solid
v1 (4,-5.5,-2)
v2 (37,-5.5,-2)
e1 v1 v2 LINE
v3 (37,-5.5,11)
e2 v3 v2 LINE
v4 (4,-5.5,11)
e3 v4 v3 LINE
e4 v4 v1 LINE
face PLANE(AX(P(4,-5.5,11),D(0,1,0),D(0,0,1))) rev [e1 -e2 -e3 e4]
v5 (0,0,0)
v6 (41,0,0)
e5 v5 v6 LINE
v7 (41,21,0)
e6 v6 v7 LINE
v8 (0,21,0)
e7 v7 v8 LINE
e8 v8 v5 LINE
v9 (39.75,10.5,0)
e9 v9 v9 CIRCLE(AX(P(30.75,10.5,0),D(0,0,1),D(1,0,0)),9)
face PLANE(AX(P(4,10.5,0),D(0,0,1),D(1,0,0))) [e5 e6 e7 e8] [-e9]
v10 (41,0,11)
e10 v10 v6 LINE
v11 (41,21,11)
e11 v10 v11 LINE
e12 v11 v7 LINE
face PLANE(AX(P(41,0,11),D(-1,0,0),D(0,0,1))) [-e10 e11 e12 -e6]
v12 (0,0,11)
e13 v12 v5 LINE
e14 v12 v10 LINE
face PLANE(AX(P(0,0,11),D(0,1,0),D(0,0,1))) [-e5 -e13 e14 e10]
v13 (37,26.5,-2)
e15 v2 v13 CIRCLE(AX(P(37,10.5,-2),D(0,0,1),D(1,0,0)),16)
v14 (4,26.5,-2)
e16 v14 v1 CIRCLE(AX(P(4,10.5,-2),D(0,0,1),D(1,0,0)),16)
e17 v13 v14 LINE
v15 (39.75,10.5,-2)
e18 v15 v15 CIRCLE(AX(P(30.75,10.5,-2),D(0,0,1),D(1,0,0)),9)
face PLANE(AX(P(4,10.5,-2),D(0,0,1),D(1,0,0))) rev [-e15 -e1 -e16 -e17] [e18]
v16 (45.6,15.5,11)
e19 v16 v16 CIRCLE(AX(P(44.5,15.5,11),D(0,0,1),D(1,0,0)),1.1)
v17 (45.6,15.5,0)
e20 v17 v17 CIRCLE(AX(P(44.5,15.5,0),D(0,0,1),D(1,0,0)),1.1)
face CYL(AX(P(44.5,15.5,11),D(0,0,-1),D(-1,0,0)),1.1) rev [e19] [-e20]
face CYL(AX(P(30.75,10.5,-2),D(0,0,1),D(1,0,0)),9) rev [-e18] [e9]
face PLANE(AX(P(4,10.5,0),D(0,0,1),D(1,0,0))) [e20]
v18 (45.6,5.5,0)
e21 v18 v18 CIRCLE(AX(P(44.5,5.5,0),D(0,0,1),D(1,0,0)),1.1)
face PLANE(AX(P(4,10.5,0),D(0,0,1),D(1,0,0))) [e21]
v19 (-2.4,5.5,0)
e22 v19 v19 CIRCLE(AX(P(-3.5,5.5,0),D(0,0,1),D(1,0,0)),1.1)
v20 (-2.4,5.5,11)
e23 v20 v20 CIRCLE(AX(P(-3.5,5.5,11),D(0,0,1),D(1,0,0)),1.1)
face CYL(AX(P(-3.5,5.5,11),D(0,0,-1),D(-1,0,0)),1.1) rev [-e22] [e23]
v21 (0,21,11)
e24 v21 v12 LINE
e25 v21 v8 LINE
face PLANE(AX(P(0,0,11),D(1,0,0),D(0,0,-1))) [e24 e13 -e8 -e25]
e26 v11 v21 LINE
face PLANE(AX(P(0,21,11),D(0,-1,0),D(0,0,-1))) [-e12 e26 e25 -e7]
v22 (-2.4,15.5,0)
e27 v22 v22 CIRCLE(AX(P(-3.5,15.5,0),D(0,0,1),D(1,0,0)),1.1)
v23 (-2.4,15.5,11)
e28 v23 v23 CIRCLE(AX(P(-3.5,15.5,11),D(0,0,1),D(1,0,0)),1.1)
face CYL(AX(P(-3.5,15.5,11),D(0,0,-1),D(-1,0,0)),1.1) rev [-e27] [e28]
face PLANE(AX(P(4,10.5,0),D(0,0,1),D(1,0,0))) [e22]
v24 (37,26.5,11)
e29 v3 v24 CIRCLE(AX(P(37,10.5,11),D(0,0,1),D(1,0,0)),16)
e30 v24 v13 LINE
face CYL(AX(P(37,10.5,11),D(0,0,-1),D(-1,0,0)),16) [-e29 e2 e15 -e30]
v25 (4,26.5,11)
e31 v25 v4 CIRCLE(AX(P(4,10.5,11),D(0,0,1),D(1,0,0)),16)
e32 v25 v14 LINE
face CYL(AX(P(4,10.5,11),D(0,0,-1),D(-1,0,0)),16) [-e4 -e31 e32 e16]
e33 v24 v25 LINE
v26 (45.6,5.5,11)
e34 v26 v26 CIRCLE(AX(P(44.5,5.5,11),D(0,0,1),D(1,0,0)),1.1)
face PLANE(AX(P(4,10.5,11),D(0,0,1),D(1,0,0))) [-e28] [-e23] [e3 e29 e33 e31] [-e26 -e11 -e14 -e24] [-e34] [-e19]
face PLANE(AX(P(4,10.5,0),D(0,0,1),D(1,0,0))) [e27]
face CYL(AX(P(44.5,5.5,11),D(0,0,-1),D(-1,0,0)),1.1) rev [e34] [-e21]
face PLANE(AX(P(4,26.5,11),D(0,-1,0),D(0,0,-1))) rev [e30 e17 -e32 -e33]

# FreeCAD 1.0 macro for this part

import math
import FreeCAD as App
import Part
import Sketcher
Q = App.Units.Quantity


def add_polygon(sketch, points):
    """Adds a closed chain of lines whose ends are joined by coincident constraints."""
    first, n = sketch.GeometryCount, len(points)
    for a, b in zip(points, points[1:] + points[:1]):
        sketch.addGeometry(Part.LineSegment(App.Vector(*a, 0), App.Vector(*b, 0)), False)
    for i in range(n):
        sketch.addConstraint(Sketcher.Constraint("Coincident", first + i, 2, first + (i + 1) % n, 1))

doc = App.newDocument("Part")
body = doc.addObject("PartDesign::Body", "Body")

# Sketch on XY plane
sketch1 = body.newObject("Sketcher::SketchObject", "Sketch")
sketch1.AttachmentSupport = (doc.getObject("XY_Plane"), [""])
sketch1.MapMode = "FlatFace"
sketch1.addGeometry(Part.LineSegment(App.Vector(4, -5.5, 0), App.Vector(37, -5.5, 0)), False)  # 0
sketch1.addGeometry(Part.ArcOfCircle(Part.Circle(App.Vector(37, 10.5, 0), App.Vector(0, 0, 1), 16), math.radians(-90), math.radians(90)), False)  # 1
sketch1.addGeometry(Part.LineSegment(App.Vector(37, 26.5, 0), App.Vector(4, 26.5, 0)), False)  # 2
sketch1.addGeometry(Part.ArcOfCircle(Part.Circle(App.Vector(4, 10.5, 0), App.Vector(0, 0, 1), 16), math.radians(90), math.radians(270)), False)  # 3
sketch1.addGeometry(Part.Circle(App.Vector(-3.5, 5.5, 0), App.Vector(0, 0, 1), 1.1), False)  # 4
sketch1.addGeometry(Part.Circle(App.Vector(44.5, 5.5, 0), App.Vector(0, 0, 1), 1.1), False)  # 5
sketch1.addGeometry(Part.Circle(App.Vector(-3.5, 15.5, 0), App.Vector(0, 0, 1), 1.1), False)  # 6
add_polygon(sketch1, [(41, 0), (0, 0), (0, 21), (41, 21)])  # lines 7-10
sketch1.addGeometry(Part.Circle(App.Vector(44.5, 15.5, 0), App.Vector(0, 0, 1), 1.1), False)  # 11
sketch1.addConstraint([
    Sketcher.Constraint("Tangent", 0, 2, 1, 1),
    Sketcher.Constraint("Tangent", 1, 2, 2, 1),
    Sketcher.Constraint("Tangent", 2, 2, 3, 1),
    Sketcher.Constraint("Tangent", 3, 2, 0, 1),
    Sketcher.Constraint("Horizontal", 0),
    Sketcher.Constraint("Horizontal", 2),
    Sketcher.Constraint("Horizontal", 7),
    Sketcher.Constraint("Vertical", 8),
    Sketcher.Constraint("Horizontal", 9),
    Sketcher.Constraint("Vertical", 10),
    Sketcher.Constraint("Coincident", 7, 2, -1, 1),
    Sketcher.Constraint("Equal", 4, 5),
    Sketcher.Constraint("Equal", 5, 6),
    Sketcher.Constraint("Equal", 6, 11),
    Sketcher.Constraint("Horizontal", 4, 3, 5, 3),
    Sketcher.Constraint("Horizontal", 6, 3, 11, 3),
    Sketcher.Constraint("Vertical", 4, 3, 6, 3),
    Sketcher.Constraint("Vertical", 5, 3, 11, 3),
    Sketcher.Constraint("Radius", 1, Q("16 mm")),
    Sketcher.Constraint("Diameter", 4, Q("2.2 mm")),
    Sketcher.Constraint("DistanceX", 0, 1, 0, 2, Q("33 mm")),
    Sketcher.Constraint("DistanceX", 7, 2, 7, 1, Q("41 mm")),
    Sketcher.Constraint("DistanceY", 8, 1, 8, 2, Q("21 mm")),
    Sketcher.Constraint("DistanceX", -1, 1, 1, 3, Q("37 mm")),
    Sketcher.Constraint("DistanceY", 4, 3, 3, 3, Q("5 mm")),
    Sketcher.Constraint("DistanceX", 4, 3, 5, 3, Q("48 mm")),
    Sketcher.Constraint("DistanceY", 3, 3, 6, 3, Q("5 mm")),
    Sketcher.Constraint("DistanceY", -1, 1, 1, 3, Q("10.5 mm")),
    Sketcher.Constraint("DistanceX", 4, 3, -1, 1, Q("3.5 mm")),
])
pad1 = body.newObject("PartDesign::Pad", "Pad")
pad1.Profile = sketch1
pad1.Length = 11

# Sketch on XY plane
sketch2 = body.newObject("Sketcher::SketchObject", "Sketch001")
sketch2.AttachmentSupport = (doc.getObject("XY_Plane"), [""])
sketch2.MapMode = "FlatFace"
sketch2.addGeometry([
    Part.LineSegment(App.Vector(37, 27, 0), App.Vector(4, 27, 0)),  # 0
    Part.ArcOfCircle(Part.Circle(App.Vector(4, 10, 0), App.Vector(0, 0, 1), 16), math.radians(90), math.radians(270)),  # 1
    Part.LineSegment(App.Vector(4, -6, 0), App.Vector(37, -6, 0)),  # 2
    Part.ArcOfCircle(Part.Circle(App.Vector(37, 10, 0), App.Vector(0, 0, 1), 16), math.radians(-90), math.radians(90)),  # 3
    Part.Circle(App.Vector(31, 10, 0), App.Vector(0, 0, 1), 9),  # 4
], False)
sketch2.addConstraint([
    Sketcher.Constraint("Tangent", 0, 2, 1, 1),
    Sketcher.Constraint("Tangent", 1, 2, 2, 1),
    Sketcher.Constraint("Tangent", 2, 2, 3, 1),
    Sketcher.Constraint("Tangent", 3, 2, 0, 1),
    Sketcher.Constraint("Horizontal", 0),
    Sketcher.Constraint("Horizontal", 2),
    Sketcher.Constraint("Horizontal", 3, 3, 4, 3),
    Sketcher.Constraint("Diameter", 4, Q("18 mm")),
    Sketcher.Constraint("Radius", 1, Q("16 mm")),
    Sketcher.Constraint("DistanceX", 0, 2, 0, 1, Q("33 mm")),
    Sketcher.Constraint("DistanceX", -1, 1, 1, 3, Q("4 mm")),
    Sketcher.Constraint("DistanceY", -1, 1, 1, 3, Q("10.5 mm")),
    Sketcher.Constraint("DistanceX", -1, 1, 4, 3, Q("30.75 mm")),
])
pad2 = body.newObject("PartDesign::Pad", "Pad001")
pad2.Profile = sketch2
pad2.Length = 2
pad2.Reversed = True

doc.recompute()
